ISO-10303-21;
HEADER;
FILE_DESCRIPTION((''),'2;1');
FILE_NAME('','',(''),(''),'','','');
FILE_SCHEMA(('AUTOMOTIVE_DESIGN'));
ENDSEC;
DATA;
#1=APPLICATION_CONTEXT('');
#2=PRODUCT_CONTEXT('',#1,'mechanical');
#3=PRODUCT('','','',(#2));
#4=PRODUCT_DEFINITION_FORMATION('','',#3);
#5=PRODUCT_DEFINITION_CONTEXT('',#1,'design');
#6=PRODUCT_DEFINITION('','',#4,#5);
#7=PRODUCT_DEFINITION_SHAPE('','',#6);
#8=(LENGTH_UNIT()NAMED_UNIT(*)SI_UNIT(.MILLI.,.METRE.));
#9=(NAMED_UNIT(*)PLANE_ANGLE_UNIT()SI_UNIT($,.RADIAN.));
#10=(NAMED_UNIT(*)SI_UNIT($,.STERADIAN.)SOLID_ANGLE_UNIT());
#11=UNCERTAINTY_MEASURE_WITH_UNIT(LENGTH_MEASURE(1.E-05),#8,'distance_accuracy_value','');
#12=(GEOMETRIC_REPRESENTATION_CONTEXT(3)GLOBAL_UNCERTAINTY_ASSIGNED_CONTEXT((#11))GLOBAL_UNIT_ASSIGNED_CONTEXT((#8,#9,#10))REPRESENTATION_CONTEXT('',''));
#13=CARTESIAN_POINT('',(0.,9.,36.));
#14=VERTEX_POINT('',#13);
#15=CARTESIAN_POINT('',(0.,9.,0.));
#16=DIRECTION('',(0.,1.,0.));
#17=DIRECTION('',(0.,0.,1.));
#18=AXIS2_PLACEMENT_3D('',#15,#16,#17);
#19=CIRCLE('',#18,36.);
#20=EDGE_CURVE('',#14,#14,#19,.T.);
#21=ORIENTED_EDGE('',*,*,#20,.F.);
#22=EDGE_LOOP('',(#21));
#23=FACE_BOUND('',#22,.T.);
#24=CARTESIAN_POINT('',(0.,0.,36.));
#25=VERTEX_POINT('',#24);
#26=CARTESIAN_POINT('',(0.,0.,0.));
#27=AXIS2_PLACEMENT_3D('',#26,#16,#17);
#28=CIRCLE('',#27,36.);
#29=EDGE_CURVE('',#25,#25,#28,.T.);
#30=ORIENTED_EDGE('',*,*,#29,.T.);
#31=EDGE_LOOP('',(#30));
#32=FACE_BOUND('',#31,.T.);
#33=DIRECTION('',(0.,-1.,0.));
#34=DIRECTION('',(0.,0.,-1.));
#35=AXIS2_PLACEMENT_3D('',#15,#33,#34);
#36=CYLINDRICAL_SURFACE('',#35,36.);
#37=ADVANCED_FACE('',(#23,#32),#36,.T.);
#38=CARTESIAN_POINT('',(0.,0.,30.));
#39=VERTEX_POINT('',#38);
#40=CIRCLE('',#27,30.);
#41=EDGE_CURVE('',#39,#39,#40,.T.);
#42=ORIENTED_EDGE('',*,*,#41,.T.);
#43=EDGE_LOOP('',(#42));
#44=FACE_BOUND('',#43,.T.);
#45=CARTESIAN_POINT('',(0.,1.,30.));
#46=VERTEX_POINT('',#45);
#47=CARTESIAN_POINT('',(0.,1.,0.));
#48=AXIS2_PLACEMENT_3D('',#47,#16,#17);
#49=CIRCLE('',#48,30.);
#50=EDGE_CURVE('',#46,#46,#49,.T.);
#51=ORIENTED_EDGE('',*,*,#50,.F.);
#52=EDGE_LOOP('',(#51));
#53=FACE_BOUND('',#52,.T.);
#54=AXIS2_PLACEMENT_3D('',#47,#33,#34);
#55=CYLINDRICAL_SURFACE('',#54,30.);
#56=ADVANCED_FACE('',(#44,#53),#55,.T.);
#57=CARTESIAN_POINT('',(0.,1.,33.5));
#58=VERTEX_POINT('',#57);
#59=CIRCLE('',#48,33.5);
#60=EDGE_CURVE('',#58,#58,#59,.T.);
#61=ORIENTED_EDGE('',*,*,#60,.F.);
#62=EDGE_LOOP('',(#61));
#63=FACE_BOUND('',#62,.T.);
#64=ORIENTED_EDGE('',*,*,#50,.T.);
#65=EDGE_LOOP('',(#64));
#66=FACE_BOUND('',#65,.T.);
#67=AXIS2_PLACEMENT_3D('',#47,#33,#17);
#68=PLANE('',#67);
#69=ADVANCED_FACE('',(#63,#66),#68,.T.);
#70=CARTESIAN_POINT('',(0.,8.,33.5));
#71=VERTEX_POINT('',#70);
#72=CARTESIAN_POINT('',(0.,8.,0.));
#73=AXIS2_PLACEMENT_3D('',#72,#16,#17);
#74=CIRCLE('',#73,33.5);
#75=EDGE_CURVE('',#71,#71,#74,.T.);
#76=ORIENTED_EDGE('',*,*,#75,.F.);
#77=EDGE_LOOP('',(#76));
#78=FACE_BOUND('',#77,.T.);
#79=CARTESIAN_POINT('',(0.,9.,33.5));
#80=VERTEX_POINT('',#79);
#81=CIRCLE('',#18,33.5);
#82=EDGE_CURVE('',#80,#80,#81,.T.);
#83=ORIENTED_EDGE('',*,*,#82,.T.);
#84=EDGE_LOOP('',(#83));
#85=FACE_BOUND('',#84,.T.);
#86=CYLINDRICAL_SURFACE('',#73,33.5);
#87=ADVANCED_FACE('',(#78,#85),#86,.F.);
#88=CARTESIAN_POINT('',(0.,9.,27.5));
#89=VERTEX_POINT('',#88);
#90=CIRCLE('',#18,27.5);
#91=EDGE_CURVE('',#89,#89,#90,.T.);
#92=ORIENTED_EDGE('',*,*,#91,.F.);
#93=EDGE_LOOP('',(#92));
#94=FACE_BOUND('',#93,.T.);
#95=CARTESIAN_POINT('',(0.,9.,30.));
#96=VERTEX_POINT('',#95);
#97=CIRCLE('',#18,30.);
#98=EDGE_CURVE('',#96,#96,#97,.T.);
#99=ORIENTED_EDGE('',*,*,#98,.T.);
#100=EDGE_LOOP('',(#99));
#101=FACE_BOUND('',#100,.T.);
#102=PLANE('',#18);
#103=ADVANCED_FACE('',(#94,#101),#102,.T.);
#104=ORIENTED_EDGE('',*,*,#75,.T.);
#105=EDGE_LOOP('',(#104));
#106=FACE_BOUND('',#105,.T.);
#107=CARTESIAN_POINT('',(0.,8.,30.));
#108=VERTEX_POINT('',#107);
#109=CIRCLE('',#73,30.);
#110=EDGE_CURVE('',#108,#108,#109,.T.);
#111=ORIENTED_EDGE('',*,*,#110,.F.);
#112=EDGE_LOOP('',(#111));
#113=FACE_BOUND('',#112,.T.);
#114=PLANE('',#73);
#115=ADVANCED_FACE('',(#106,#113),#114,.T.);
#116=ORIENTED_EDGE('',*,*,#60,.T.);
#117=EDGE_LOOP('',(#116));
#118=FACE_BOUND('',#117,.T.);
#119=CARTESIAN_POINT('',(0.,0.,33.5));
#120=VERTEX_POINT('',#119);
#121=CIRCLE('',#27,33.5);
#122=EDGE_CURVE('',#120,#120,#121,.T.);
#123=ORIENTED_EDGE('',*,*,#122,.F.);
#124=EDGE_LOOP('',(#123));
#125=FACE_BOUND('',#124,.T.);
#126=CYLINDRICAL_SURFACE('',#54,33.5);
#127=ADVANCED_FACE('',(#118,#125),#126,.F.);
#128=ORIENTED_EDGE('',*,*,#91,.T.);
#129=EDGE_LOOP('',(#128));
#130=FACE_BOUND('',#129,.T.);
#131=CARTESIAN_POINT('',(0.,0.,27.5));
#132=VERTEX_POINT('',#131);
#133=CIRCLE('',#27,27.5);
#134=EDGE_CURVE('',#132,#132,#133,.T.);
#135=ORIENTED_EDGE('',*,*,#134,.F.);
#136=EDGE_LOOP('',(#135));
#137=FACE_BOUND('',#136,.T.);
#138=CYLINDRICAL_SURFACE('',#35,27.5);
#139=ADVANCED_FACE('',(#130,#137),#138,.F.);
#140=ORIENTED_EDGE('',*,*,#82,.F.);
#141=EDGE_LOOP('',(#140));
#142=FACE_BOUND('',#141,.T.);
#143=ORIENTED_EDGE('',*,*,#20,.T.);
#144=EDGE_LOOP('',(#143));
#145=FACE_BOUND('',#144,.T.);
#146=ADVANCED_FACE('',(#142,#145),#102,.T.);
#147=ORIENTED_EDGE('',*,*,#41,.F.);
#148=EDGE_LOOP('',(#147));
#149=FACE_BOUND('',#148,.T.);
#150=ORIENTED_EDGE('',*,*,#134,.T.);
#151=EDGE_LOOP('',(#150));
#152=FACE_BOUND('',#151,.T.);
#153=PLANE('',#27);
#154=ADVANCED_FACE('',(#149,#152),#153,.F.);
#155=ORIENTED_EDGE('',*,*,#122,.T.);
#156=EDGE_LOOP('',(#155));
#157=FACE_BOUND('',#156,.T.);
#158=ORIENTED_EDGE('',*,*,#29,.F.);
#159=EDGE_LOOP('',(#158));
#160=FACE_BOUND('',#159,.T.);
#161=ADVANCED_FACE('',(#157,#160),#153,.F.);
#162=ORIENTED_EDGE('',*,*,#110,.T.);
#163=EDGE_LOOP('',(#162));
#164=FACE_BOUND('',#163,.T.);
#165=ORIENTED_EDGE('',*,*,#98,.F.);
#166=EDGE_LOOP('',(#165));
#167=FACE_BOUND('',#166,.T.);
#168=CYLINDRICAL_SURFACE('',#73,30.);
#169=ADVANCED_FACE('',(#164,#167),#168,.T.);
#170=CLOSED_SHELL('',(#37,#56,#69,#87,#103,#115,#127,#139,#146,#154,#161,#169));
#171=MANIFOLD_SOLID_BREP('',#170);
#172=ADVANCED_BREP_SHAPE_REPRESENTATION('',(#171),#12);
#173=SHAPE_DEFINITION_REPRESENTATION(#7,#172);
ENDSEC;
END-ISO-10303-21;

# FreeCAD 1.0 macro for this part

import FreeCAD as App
import Part
import Sketcher

doc = App.newDocument("Part")
body = doc.addObject("PartDesign::Body", "Body")

# Sketch on XZ plane
sketch1 = body.newObject("Sketcher::SketchObject", "Sketch")
sketch1.AttachmentSupport = (doc.getObject("XZ_Plane"), [""])
sketch1.MapMode = "FlatFace"
sketch1.addGeometry(Part.Circle(App.Vector(0, 0, 0), App.Vector(0, 0, 1), 36), False)
sketch1.addGeometry(Part.Circle(App.Vector(0, 0, 0), App.Vector(0, 0, 1), 27.5), False)
sketch1.addConstraint(Sketcher.Constraint("Coincident", 0, 3, -1, 1))
sketch1.addConstraint(Sketcher.Constraint("Coincident", 1, 3, -1, 1))
sketch1.addConstraint(Sketcher.Constraint("Diameter", 0, 72.0))
sketch1.addConstraint(Sketcher.Constraint("Diameter", 1, 55.0))
pad1 = body.newObject("PartDesign::Pad", "Pad")
pad1.Profile = sketch1
pad1.Length = 9
pad1.Reversed = True

# Sketch on XZ plane
sketch2 = body.newObject("Sketcher::SketchObject", "Sketch001")
sketch2.AttachmentSupport = (doc.getObject("XZ_Plane"), [""])
sketch2.MapMode = "FlatFace"
sketch2.AttachmentOffset = App.Placement(App.Vector(0, 0, -9), App.Rotation())
sketch2.addGeometry(Part.Circle(App.Vector(0, 0, 0), App.Vector(0, 0, 1), 33.5), False)
sketch2.addGeometry(Part.Circle(App.Vector(0, 0, 0), App.Vector(0, 0, 1), 30), False)
sketch2.addConstraint(Sketcher.Constraint("Coincident", 0, 3, -1, 1))
sketch2.addConstraint(Sketcher.Constraint("Coincident", 1, 3, -1, 1))
sketch2.addConstraint(Sketcher.Constraint("Diameter", 0, 67.0))
sketch2.addConstraint(Sketcher.Constraint("Diameter", 1, 60.0))
pocket1 = body.newObject("PartDesign::Pocket", "Pocket")
pocket1.Profile = sketch2
pocket1.Length = 1
pocket1.Reversed = True
doc.recompute()

datumplane = body.newObject("PartDesign::Plane", "DatumPlane")
datumplane.AttachmentSupport = (doc.getObject("XZ_Plane"), [""])
datumplane.MapMode = "FlatFace"
datumplane.AttachmentOffset = App.Placement(App.Vector(0, 0, -4.5), App.Rotation())
mirrored = body.newObject("PartDesign::Mirrored", "Mirrored")
mirrored.Originals = [pocket1]
mirrored.MirrorPlane = (datumplane, [""])
body.Tip = mirrored

doc.recompute()
